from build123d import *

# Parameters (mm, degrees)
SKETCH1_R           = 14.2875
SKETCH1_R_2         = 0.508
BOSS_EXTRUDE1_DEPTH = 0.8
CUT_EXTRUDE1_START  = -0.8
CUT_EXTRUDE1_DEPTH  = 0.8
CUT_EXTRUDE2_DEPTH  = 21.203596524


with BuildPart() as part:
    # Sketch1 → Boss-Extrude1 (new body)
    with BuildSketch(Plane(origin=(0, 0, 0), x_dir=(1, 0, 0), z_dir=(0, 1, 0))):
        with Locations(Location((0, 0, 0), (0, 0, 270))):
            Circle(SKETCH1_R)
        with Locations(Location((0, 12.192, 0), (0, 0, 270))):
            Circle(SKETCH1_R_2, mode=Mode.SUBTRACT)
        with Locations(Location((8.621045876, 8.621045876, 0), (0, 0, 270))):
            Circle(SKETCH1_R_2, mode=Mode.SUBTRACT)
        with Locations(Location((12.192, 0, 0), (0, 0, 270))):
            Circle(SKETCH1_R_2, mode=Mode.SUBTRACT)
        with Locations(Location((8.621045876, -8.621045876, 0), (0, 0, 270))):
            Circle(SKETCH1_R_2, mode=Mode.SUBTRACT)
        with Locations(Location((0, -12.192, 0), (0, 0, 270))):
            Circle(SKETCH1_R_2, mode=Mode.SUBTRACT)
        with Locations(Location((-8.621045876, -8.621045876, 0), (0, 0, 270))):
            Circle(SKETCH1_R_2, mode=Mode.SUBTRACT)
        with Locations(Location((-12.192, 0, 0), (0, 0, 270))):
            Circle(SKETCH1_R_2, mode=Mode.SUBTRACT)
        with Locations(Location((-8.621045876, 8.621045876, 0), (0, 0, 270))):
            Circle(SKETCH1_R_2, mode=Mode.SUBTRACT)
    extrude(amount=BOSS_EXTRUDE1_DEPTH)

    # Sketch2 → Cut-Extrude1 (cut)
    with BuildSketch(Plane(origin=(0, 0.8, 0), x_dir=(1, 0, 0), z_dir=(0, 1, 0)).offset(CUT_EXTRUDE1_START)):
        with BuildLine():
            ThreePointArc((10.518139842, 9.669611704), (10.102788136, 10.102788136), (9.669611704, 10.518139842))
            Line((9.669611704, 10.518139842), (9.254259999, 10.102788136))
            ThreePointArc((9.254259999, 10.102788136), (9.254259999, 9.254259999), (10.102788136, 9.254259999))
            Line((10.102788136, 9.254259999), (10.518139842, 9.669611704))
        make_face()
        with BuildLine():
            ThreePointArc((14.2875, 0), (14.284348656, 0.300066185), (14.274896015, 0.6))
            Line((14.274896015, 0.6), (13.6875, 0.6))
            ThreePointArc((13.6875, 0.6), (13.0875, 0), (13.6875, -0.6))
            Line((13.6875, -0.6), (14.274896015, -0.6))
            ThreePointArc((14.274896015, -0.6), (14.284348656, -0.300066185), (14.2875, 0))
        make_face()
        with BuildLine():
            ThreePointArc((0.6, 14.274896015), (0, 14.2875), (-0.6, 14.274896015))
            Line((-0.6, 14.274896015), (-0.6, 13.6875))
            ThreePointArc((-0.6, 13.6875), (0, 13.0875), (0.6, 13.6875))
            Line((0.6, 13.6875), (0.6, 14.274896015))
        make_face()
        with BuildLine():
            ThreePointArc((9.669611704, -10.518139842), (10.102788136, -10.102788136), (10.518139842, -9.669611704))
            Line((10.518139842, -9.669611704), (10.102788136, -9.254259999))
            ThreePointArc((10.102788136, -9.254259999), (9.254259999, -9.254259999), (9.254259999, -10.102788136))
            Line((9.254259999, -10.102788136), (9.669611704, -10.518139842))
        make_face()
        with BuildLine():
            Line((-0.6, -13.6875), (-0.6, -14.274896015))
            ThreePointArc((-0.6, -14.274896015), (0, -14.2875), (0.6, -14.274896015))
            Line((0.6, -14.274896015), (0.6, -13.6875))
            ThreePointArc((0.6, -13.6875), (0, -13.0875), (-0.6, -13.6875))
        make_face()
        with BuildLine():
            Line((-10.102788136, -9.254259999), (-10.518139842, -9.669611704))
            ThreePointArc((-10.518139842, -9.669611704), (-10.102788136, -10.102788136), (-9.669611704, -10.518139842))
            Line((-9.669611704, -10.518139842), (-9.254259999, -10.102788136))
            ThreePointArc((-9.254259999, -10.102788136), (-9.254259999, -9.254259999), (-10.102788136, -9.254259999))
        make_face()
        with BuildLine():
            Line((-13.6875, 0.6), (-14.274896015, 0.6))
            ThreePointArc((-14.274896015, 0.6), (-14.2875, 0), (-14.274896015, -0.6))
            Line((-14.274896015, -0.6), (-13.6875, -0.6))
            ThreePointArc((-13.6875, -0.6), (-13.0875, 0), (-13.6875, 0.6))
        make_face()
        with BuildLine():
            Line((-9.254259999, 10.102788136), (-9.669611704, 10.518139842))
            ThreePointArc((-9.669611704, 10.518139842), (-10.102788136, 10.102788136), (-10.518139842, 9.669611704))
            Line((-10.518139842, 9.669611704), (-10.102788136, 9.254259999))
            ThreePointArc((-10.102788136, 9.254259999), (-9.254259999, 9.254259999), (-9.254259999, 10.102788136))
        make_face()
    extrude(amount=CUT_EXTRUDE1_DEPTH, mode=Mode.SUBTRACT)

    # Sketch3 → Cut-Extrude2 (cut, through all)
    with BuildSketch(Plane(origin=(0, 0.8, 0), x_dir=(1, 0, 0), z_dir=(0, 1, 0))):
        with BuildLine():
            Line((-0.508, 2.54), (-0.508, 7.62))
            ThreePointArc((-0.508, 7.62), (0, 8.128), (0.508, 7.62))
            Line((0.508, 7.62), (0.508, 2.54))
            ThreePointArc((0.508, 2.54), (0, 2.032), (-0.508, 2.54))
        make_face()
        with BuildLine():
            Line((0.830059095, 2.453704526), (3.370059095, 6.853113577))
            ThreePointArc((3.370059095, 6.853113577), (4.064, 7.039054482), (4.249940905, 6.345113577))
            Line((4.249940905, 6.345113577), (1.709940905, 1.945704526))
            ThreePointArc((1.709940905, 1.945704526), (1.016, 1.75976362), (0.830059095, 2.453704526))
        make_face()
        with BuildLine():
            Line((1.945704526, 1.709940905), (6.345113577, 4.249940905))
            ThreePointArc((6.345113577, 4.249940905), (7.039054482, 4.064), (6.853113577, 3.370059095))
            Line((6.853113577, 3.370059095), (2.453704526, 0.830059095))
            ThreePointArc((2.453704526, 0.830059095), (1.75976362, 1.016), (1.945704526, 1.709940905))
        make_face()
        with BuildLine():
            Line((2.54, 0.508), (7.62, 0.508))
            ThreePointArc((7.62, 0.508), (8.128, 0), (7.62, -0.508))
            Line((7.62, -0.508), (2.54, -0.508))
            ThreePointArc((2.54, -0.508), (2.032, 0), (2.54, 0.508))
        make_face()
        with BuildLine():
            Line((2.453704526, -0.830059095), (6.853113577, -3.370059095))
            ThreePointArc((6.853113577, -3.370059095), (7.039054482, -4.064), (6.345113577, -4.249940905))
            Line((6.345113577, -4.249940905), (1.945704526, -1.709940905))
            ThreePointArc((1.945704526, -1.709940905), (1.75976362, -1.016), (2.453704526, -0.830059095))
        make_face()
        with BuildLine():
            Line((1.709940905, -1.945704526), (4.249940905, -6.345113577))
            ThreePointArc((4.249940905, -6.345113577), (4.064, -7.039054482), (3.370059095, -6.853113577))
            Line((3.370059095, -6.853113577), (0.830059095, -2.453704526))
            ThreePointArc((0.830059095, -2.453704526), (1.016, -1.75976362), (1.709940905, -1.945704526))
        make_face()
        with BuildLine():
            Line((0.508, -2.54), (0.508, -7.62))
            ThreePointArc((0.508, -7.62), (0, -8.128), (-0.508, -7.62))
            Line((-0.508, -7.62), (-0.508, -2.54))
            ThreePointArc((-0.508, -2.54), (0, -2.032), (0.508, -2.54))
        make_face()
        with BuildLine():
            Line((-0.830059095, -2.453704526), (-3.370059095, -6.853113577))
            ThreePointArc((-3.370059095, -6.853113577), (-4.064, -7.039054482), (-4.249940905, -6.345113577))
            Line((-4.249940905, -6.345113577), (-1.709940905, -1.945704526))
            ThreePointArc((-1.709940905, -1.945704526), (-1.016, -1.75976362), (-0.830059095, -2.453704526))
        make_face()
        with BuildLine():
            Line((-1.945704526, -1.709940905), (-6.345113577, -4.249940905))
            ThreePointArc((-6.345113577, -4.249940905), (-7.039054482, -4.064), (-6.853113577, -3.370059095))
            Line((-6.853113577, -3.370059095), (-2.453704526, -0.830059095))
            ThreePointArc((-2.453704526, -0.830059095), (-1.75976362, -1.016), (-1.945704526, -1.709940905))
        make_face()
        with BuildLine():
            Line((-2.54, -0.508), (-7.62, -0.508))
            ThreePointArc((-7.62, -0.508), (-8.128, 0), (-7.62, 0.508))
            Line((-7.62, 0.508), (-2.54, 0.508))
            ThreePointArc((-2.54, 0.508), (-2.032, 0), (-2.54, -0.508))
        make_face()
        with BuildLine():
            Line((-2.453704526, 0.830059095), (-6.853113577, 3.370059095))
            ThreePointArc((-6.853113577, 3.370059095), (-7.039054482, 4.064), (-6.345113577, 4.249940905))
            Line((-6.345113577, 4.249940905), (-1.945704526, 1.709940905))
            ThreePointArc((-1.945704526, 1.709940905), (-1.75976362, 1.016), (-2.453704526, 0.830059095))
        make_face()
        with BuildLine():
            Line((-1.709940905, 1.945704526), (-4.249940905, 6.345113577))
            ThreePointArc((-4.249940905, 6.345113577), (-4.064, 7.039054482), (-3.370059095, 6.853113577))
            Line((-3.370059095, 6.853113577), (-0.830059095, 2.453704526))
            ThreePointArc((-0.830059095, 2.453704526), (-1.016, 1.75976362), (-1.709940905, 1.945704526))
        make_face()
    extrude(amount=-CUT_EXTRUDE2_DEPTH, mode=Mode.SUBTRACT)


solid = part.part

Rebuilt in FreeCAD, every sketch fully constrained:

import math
import FreeCAD as App
import Part
import Sketcher

V = App.Vector
Q = App.Units.Quantity

doc = App.newDocument("Part")
body = doc.addObject("PartDesign::Body", "Body")

# Sketch on XZ plane
sketch1 = doc.addObject("Sketcher::SketchObject", "Sketch")
body.addObject(sketch1)
sketch1.AttachmentSupport = (doc.XZ_Plane, [""])
sketch1.MapMode = "FlatFace"
sketch1.addGeometry(Part.Circle(V(0, 0, 0), V(0, 0, 1), 14.3), False)
sketch1.addGeometry(Part.Circle(V(-8.6, -8.6, 0), V(0, 0, 1), 0.5), False)
sketch1.addGeometry(Part.Circle(V(0, -12.2, 0), V(0, 0, 1), 0.5), False)
sketch1.addGeometry(Part.Circle(V(-12.2, 0, 0), V(0, 0, 1), 0.5), False)
sketch1.addGeometry(Part.Circle(V(-8.6, 8.6, 0), V(0, 0, 1), 0.5), False)
sketch1.addGeometry(Part.Circle(V(8.6, -8.6, 0), V(0, 0, 1), 0.5), False)
sketch1.addGeometry(Part.Circle(V(12.2, 0, 0), V(0, 0, 1), 0.5), False)
sketch1.addGeometry(Part.Circle(V(0, 12.2, 0), V(0, 0, 1), 0.5), False)
sketch1.addGeometry(Part.Circle(V(8.6, 8.6, 0), V(0, 0, 1), 0.5), False)
sketch1.addConstraint(Sketcher.Constraint("Coincident", 0, 3, -1, 1))
sketch1.addConstraint(Sketcher.Constraint("Equal", 1, 2))
sketch1.addConstraint(Sketcher.Constraint("Equal", 2, 3))
sketch1.addConstraint(Sketcher.Constraint("Equal", 3, 4))
sketch1.addConstraint(Sketcher.Constraint("Equal", 4, 5))
sketch1.addConstraint(Sketcher.Constraint("Equal", 5, 6))
sketch1.addConstraint(Sketcher.Constraint("Equal", 6, 7))
sketch1.addConstraint(Sketcher.Constraint("Equal", 7, 8))
sketch1.addConstraint(Sketcher.Constraint("Symmetric", 4, 3, 5, 3, -1, 1))
sketch1.addConstraint(Sketcher.Constraint("Symmetric", 3, 3, 6, 3, -1, 1))
sketch1.addConstraint(Sketcher.Constraint("Symmetric", 2, 3, 7, 3, -1, 1))
sketch1.addConstraint(Sketcher.Constraint("Symmetric", 1, 3, 8, 3, -1, 1))
sketch1.addConstraint(Sketcher.Constraint("Symmetric", 1, 3, 5, 3, -2))
sketch1.addConstraint(Sketcher.Constraint("PointOnObject", 2, 3, -2))
sketch1.addConstraint(Sketcher.Constraint("PointOnObject", 3, 3, -1))
sketch1.addConstraint(Sketcher.Constraint("Diameter", 1, Q("0.04 in")))
sketch1.addConstraint(Sketcher.Constraint("Diameter", 0, Q("1.125 in")))
sketch1.addConstraint(Sketcher.Constraint("DistanceY", 2, 3, -1, 1, Q("0.48 in")))
sketch1.addConstraint(Sketcher.Constraint("DistanceX", 3, 3, -1, 1, Q("0.48 in")))
sketch1.addConstraint(Sketcher.Constraint("DistanceY", 1, 3, 4, 3, 17.242092))
sketch1.addConstraint(Sketcher.Constraint("DistanceX", 1, 3, 5, 3, 17.242092))
pad1 = doc.addObject("PartDesign::Pad", "Pad")
body.addObject(pad1)
pad1.Profile = sketch1
pad1.Length = 0.8
pad1.Reversed = True

# Sketch on XZ plane
sketch2 = doc.addObject("Sketcher::SketchObject", "Sketch001")
body.addObject(sketch2)
sketch2.AttachmentSupport = (doc.XZ_Plane, [""])
sketch2.MapMode = "FlatFace"
sketch2.addGeometry(Part.ArcOfCircle(Part.Circle(V(0, 0, 0), V(0, 0, 1), 14.3), math.radians(-47.41), math.radians(-42.59)), False)
sketch2.addGeometry(Part.LineSegment(V(9.7, -10.5, 0), V(9.3, -10.1, 0)), False)
sketch2.addGeometry(Part.ArcOfCircle(Part.Circle(V(9.7, -9.7, 0), V(0, 0, 1), 0.6), math.radians(45), math.radians(225)), False)
sketch2.addGeometry(Part.LineSegment(V(10.1, -9.3, 0), V(10.5, -9.7, 0)), False)
sketch2.addGeometry(Part.ArcOfCircle(Part.Circle(V(0, 0, 0), V(0, 0, 1), 14.3), math.radians(-2.41), math.radians(0)), False)
sketch2.addGeometry(Part.LineSegment(V(14.3, -0.6, 0), V(13.7, -0.6, 0)), False)
sketch2.addGeometry(Part.ArcOfCircle(Part.Circle(V(13.7, 0, 0), V(0, 0, 1), 0.6), math.radians(90), math.radians(270)), False)
sketch2.addGeometry(Part.LineSegment(V(13.7, 0.6, 0), V(14.3, 0.6, 0)), False)
sketch2.addGeometry(Part.ArcOfCircle(Part.Circle(V(0, 0, 0), V(0, 0, 1), 14.3), math.radians(0), math.radians(2.41)), False)
sketch2.addGeometry(Part.ArcOfCircle(Part.Circle(V(0, 0, 0), V(0, 0, 1), 14.3), math.radians(-92.41), math.radians(-87.59)), False)
sketch2.addGeometry(Part.LineSegment(V(-0.6, -14.3, 0), V(-0.6, -13.7, 0)), False)
sketch2.addGeometry(Part.ArcOfCircle(Part.Circle(V(0, -13.7, 0), V(0, 0, 1), 0.6), math.radians(0), math.radians(180)), False)
sketch2.addGeometry(Part.LineSegment(V(0.6, -13.7, 0), V(0.6, -14.3, 0)), False)
sketch2.addGeometry(Part.ArcOfCircle(Part.Circle(V(0, 0, 0), V(0, 0, 1), 14.3), math.radians(42.59), math.radians(47.41)), False)
sketch2.addGeometry(Part.LineSegment(V(10.5, 9.7, 0), V(10.1, 9.3, 0)), False)
sketch2.addGeometry(Part.ArcOfCircle(Part.Circle(V(9.7, 9.7, 0), V(0, 0, 1), 0.6), math.radians(135), math.radians(315)), False)
sketch2.addGeometry(Part.LineSegment(V(9.3, 10.1, 0), V(9.7, 10.5, 0)), False)
sketch2.addGeometry(Part.LineSegment(V(-0.6, 13.7, 0), V(-0.6, 14.3, 0)), False)
sketch2.addGeometry(Part.ArcOfCircle(Part.Circle(V(0, 0, 0), V(0, 0, 1), 14.3), math.radians(87.59), math.radians(92.41)), False)
sketch2.addGeometry(Part.LineSegment(V(0.6, 14.3, 0), V(0.6, 13.7, 0)), False)
sketch2.addGeometry(Part.ArcOfCircle(Part.Circle(V(0, 13.7, 0), V(0, 0, 1), 0.6), math.radians(180), math.radians(360)), False)
sketch2.addGeometry(Part.LineSegment(V(-10.1, 9.3, 0), V(-10.5, 9.7, 0)), False)
sketch2.addGeometry(Part.ArcOfCircle(Part.Circle(V(0, 0, 0), V(0, 0, 1), 14.3), math.radians(132.59), math.radians(137.41)), False)
sketch2.addGeometry(Part.LineSegment(V(-9.7, 10.5, 0), V(-9.3, 10.1, 0)), False)
sketch2.addGeometry(Part.ArcOfCircle(Part.Circle(V(-9.7, 9.7, 0), V(0, 0, 1), 0.6), math.radians(-135), math.radians(45)), False)
sketch2.addGeometry(Part.LineSegment(V(-13.7, -0.6, 0), V(-14.3, -0.6, 0)), False)
sketch2.addGeometry(Part.ArcOfCircle(Part.Circle(V(0, 0, 0), V(0, 0, 1), 14.3), math.radians(177.59), math.radians(182.41)), False)
sketch2.addGeometry(Part.LineSegment(V(-14.3, 0.6, 0), V(-13.7, 0.6, 0)), False)
sketch2.addGeometry(Part.ArcOfCircle(Part.Circle(V(-13.7, 0, 0), V(0, 0, 1), 0.6), math.radians(-90), math.radians(90)), False)
sketch2.addGeometry(Part.LineSegment(V(-9.3, -10.1, 0), V(-9.7, -10.5, 0)), False)
sketch2.addGeometry(Part.ArcOfCircle(Part.Circle(V(0, 0, 0), V(0, 0, 1), 14.3), math.radians(-137.41), math.radians(-132.59)), False)
sketch2.addGeometry(Part.LineSegment(V(-10.5, -9.7, 0), V(-10.1, -9.3, 0)), False)
sketch2.addGeometry(Part.ArcOfCircle(Part.Circle(V(-9.7, -9.7, 0), V(0, 0, 1), 0.6), math.radians(-45), math.radians(135)), False)
sketch2.addConstraint(Sketcher.Constraint("Coincident", 0, 1, 1, 1))
sketch2.addConstraint(Sketcher.Constraint("Tangent", 1, 2, 2, 2))
sketch2.addConstraint(Sketcher.Constraint("Tangent", 2, 1, 3, 1))
sketch2.addConstraint(Sketcher.Constraint("Coincident", 3, 2, 0, 2))
sketch2.addConstraint(Sketcher.Constraint("Coincident", 4, 1, 5, 1))
sketch2.addConstraint(Sketcher.Constraint("Tangent", 5, 2, 6, 2))
sketch2.addConstraint(Sketcher.Constraint("Tangent", 6, 1, 7, 1))
sketch2.addConstraint(Sketcher.Constraint("Coincident", 7, 2, 8, 2))
sketch2.addConstraint(Sketcher.Constraint("Tangent", 8, 1, 4, 2))
sketch2.addConstraint(Sketcher.Constraint("Coincident", 9, 1, 10, 1))
sketch2.addConstraint(Sketcher.Constraint("Tangent", 10, 2, 11, 2))
sketch2.addConstraint(Sketcher.Constraint("Tangent", 11, 1, 12, 1))
sketch2.addConstraint(Sketcher.Constraint("Coincident", 12, 2, 9, 2))
sketch2.addConstraint(Sketcher.Constraint("Coincident", 13, 1, 14, 1))
sketch2.addConstraint(Sketcher.Constraint("Tangent", 14, 2, 15, 2))
sketch2.addConstraint(Sketcher.Constraint("Tangent", 15, 1, 16, 1))
sketch2.addConstraint(Sketcher.Constraint("Coincident", 16, 2, 13, 2))
sketch2.addConstraint(Sketcher.Constraint("Coincident", 17, 2, 18, 2))
sketch2.addConstraint(Sketcher.Constraint("Coincident", 18, 1, 19, 1))
sketch2.addConstraint(Sketcher.Constraint("Tangent", 19, 2, 20, 2))
sketch2.addConstraint(Sketcher.Constraint("Tangent", 20, 1, 17, 1))
sketch2.addConstraint(Sketcher.Constraint("Coincident", 21, 2, 22, 2))
sketch2.addConstraint(Sketcher.Constraint("Coincident", 22, 1, 23, 1))
sketch2.addConstraint(Sketcher.Constraint("Tangent", 23, 2, 24, 2))
sketch2.addConstraint(Sketcher.Constraint("Tangent", 24, 1, 21, 1))
sketch2.addConstraint(Sketcher.Constraint("Coincident", 25, 2, 26, 2))
sketch2.addConstraint(Sketcher.Constraint("Coincident", 26, 1, 27, 1))
sketch2.addConstraint(Sketcher.Constraint("Tangent", 27, 2, 28, 2))
sketch2.addConstraint(Sketcher.Constraint("Tangent", 28, 1, 25, 1))
sketch2.addConstraint(Sketcher.Constraint("Coincident", 29, 2, 30, 2))
sketch2.addConstraint(Sketcher.Constraint("Coincident", 30, 1, 31, 1))
sketch2.addConstraint(Sketcher.Constraint("Tangent", 31, 2, 32, 2))
sketch2.addConstraint(Sketcher.Constraint("Tangent", 32, 1, 29, 1))
sketch2.addConstraint(Sketcher.Constraint("Horizontal", 5))
sketch2.addConstraint(Sketcher.Constraint("Horizontal", 7))
sketch2.addConstraint(Sketcher.Constraint("Vertical", 10))
sketch2.addConstraint(Sketcher.Constraint("Vertical", 12))
sketch2.addConstraint(Sketcher.Constraint("Vertical", 17))
sketch2.addConstraint(Sketcher.Constraint("Vertical", 19))
sketch2.addConstraint(Sketcher.Constraint("Horizontal", 25))
sketch2.addConstraint(Sketcher.Constraint("Horizontal", 27))
sketch2.addConstraint(Sketcher.Constraint("Coincident", 0, 3, -1, 1))
sketch2.addConstraint(Sketcher.Constraint("Coincident", 4, 3, -1, 1))
sketch2.addConstraint(Sketcher.Constraint("Coincident", 9, 3, -1, 1))
sketch2.addConstraint(Sketcher.Constraint("Coincident", 13, 3, -1, 1))
sketch2.addConstraint(Sketcher.Constraint("Coincident", 18, 3, -1, 1))
sketch2.addConstraint(Sketcher.Constraint("Coincident", 22, 3, -1, 1))
sketch2.addConstraint(Sketcher.Constraint("Coincident", 26, 3, -1, 1))
sketch2.addConstraint(Sketcher.Constraint("Coincident", 30, 3, -1, 1))
sketch2.addConstraint(Sketcher.Constraint("Equal", 0, 4))
sketch2.addConstraint(Sketcher.Constraint("Equal", 2, 6))
sketch2.addConstraint(Sketcher.Constraint("Equal", 4, 8))
sketch2.addConstraint(Sketcher.Constraint("Equal", 8, 9))
sketch2.addConstraint(Sketcher.Constraint("Equal", 6, 11))
sketch2.addConstraint(Sketcher.Constraint("Equal", 9, 13))
sketch2.addConstraint(Sketcher.Constraint("Equal", 11, 15))
sketch2.addConstraint(Sketcher.Constraint("Equal", 13, 18))
sketch2.addConstraint(Sketcher.Constraint("Equal", 15, 20))
sketch2.addConstraint(Sketcher.Constraint("Equal", 18, 22))
sketch2.addConstraint(Sketcher.Constraint("Equal", 20, 24))
sketch2.addConstraint(Sketcher.Constraint("Equal", 22, 26))
sketch2.addConstraint(Sketcher.Constraint("Equal", 24, 28))
sketch2.addConstraint(Sketcher.Constraint("Equal", 26, 30))
sketch2.addConstraint(Sketcher.Constraint("Equal", 28, 32))
sketch2.addConstraint(Sketcher.Constraint("Symmetric", 11, 3, 20, 3, -1, 1))
sketch2.addConstraint(Sketcher.Constraint("Symmetric", 2, 3, 24, 3, -1, 1))
sketch2.addConstraint(Sketcher.Constraint("Symmetric", 6, 3, 28, 3, -1, 1))
sketch2.addConstraint(Sketcher.Constraint("Symmetric", 15, 3, 32, 3, -1, 1))
sketch2.addConstraint(Sketcher.Constraint("Symmetric", 15, 3, 24, 3, -2))
sketch2.addConstraint(Sketcher.Constraint("PointOnObject", 6, 3, -1))
sketch2.addConstraint(Sketcher.Constraint("PointOnObject", 11, 3, -2))
sketch2.addConstraint(Sketcher.Constraint("PointOnObject", 8, 1, -1))
sketch2.addConstraint(Sketcher.Constraint("Parallel", 1, 3))
sketch2.addConstraint(Sketcher.Constraint("Perpendicular", 3, 14))
sketch2.addConstraint(Sketcher.Constraint("Parallel", 14, 16))
sketch2.addConstraint(Sketcher.Constraint("Perpendicular", 16, 21))
sketch2.addConstraint(Sketcher.Constraint("Parallel", 21, 23))
sketch2.addConstraint(Sketcher.Constraint("Perpendicular", 23, 29))
sketch2.addConstraint(Sketcher.Constraint("Parallel", 29, 31))
sketch2.addConstraint(Sketcher.Constraint("Horizontal", 13, 1, 21, 2))
sketch2.addConstraint(Sketcher.Constraint("Equal", 27, 10))
sketch2.addConstraint(Sketcher.Constraint("Equal", 1, 3))
sketch2.addConstraint(Sketcher.Constraint("Radius", 0, Q("0.5625 in")))
sketch2.addConstraint(Sketcher.Constraint("Radius", 2, 0.6))
sketch2.addConstraint(Sketcher.Constraint("DistanceX", -1, 1, 6, 3, 13.6875))
sketch2.addConstraint(Sketcher.Constraint("DistanceX", -1, 1, 1, 2, 9.25426))
pocket1 = doc.addObject("PartDesign::Pocket", "Pocket")
body.addObject(pocket1)
pocket1.Profile = sketch2
pocket1.Length = 0.8

# Sketch on XZ plane
sketch3 = doc.addObject("Sketcher::SketchObject", "Sketch002")
body.addObject(sketch3)
sketch3.AttachmentSupport = (doc.XZ_Plane, [""])
sketch3.MapMode = "FlatFace"
sketch3.AttachmentOffset = App.Placement(V(0, 0, -0.8), App.Rotation())
sketch3.addGeometry(Part.LineSegment(V(-0.5, -7.6, 0), V(-0.5, -2.5, 0)), False)
sketch3.addGeometry(Part.ArcOfCircle(Part.Circle(V(0, -2.5, 0), V(0, 0, 1), 0.5), math.radians(0), math.radians(180)), False)
sketch3.addGeometry(Part.LineSegment(V(0.5, -2.5, 0), V(0.5, -7.6, 0)), False)
sketch3.addGeometry(Part.ArcOfCircle(Part.Circle(V(0, -7.6, 0), V(0, 0, 1), 0.5), math.radians(180), math.radians(360)), False)
sketch3.addGeometry(Part.LineSegment(V(3.4, -6.9, 0), V(0.8, -2.5, 0)), False)
sketch3.addGeometry(Part.ArcOfCircle(Part.Circle(V(1.3, -2.2, 0), V(0, 0, 1), 0.5), math.radians(30), math.radians(210)), False)
sketch3.addGeometry(Part.LineSegment(V(1.7, -1.9, 0), V(4.2, -6.3, 0)), False)
sketch3.addGeometry(Part.ArcOfCircle(Part.Circle(V(3.8, -6.6, 0), V(0, 0, 1), 0.5), math.radians(-150), math.radians(30)), False)
sketch3.addGeometry(Part.LineSegment(V(6.3, -4.2, 0), V(1.9, -1.7, 0)), False)
sketch3.addGeometry(Part.ArcOfCircle(Part.Circle(V(2.2, -1.3, 0), V(0, 0, 1), 0.5), math.radians(60), math.radians(240)), False)
sketch3.addGeometry(Part.LineSegment(V(2.5, -0.8, 0), V(6.9, -3.4, 0)), False)
sketch3.addGeometry(Part.ArcOfCircle(Part.Circle(V(6.6, -3.8, 0), V(0, 0, 1), 0.5), math.radians(-120), math.radians(60)), False)
sketch3.addGeometry(Part.LineSegment(V(7.6, -0.5, 0), V(2.5, -0.5, 0)), False)
sketch3.addGeometry(Part.ArcOfCircle(Part.Circle(V(2.5, 0, 0), V(0, 0, 1), 0.5), math.radians(90), math.radians(270)), False)
sketch3.addGeometry(Part.LineSegment(V(2.5, 0.5, 0), V(7.6, 0.5, 0)), False)
sketch3.addGeometry(Part.ArcOfCircle(Part.Circle(V(7.6, 0, 0), V(0, 0, 1), 0.5), math.radians(-90), math.radians(90)), False)
sketch3.addGeometry(Part.LineSegment(V(6.9, 3.4, 0), V(2.5, 0.8, 0)), False)
sketch3.addGeometry(Part.ArcOfCircle(Part.Circle(V(2.2, 1.3, 0), V(0, 0, 1), 0.5), math.radians(120), math.radians(300)), False)
sketch3.addGeometry(Part.LineSegment(V(1.9, 1.7, 0), V(6.3, 4.2, 0)), False)
sketch3.addGeometry(Part.ArcOfCircle(Part.Circle(V(6.6, 3.8, 0), V(0, 0, 1), 0.5), math.radians(-60), math.radians(120)), False)
sketch3.addGeometry(Part.LineSegment(V(4.2, 6.3, 0), V(1.7, 1.9, 0)), False)
sketch3.addGeometry(Part.ArcOfCircle(Part.Circle(V(1.3, 2.2, 0), V(0, 0, 1), 0.5), math.radians(150), math.radians(330)), False)
sketch3.addGeometry(Part.LineSegment(V(0.8, 2.5, 0), V(3.4, 6.9, 0)), False)
sketch3.addGeometry(Part.ArcOfCircle(Part.Circle(V(3.8, 6.6, 0), V(0, 0, 1), 0.5), math.radians(-30), math.radians(150)), False)
sketch3.addGeometry(Part.LineSegment(V(0.5, 7.6, 0), V(0.5, 2.5, 0)), False)
sketch3.addGeometry(Part.ArcOfCircle(Part.Circle(V(0, 2.5, 0), V(0, 0, 1), 0.5), math.radians(180), math.radians(360)), False)
sketch3.addGeometry(Part.LineSegment(V(-0.5, 2.5, 0), V(-0.5, 7.6, 0)), False)
sketch3.addGeometry(Part.ArcOfCircle(Part.Circle(V(0, 7.6, 0), V(0, 0, 1), 0.5), math.radians(0), math.radians(180)), False)
sketch3.addGeometry(Part.LineSegment(V(-3.4, 6.9, 0), V(-0.8, 2.5, 0)), False)
sketch3.addGeometry(Part.ArcOfCircle(Part.Circle(V(-1.3, 2.2, 0), V(0, 0, 1), 0.5), math.radians(-150), math.radians(30)), False)
sketch3.addGeometry(Part.LineSegment(V(-1.7, 1.9, 0), V(-4.2, 6.3, 0)), False)
sketch3.addGeometry(Part.ArcOfCircle(Part.Circle(V(-3.8, 6.6, 0), V(0, 0, 1), 0.5), math.radians(30), math.radians(210)), False)
sketch3.addGeometry(Part.LineSegment(V(-6.3, 4.2, 0), V(-1.9, 1.7, 0)), False)
sketch3.addGeometry(Part.ArcOfCircle(Part.Circle(V(-2.2, 1.3, 0), V(0, 0, 1), 0.5), math.radians(-120), math.radians(60)), False)
sketch3.addGeometry(Part.LineSegment(V(-2.5, 0.8, 0), V(-6.9, 3.4, 0)), False)
sketch3.addGeometry(Part.ArcOfCircle(Part.Circle(V(-6.6, 3.8, 0), V(0, 0, 1), 0.5), math.radians(60), math.radians(240)), False)
sketch3.addGeometry(Part.LineSegment(V(-7.6, 0.5, 0), V(-2.5, 0.5, 0)), False)
sketch3.addGeometry(Part.ArcOfCircle(Part.Circle(V(-2.5, 0, 0), V(0, 0, 1), 0.5), math.radians(-90), math.radians(90)), False)
sketch3.addGeometry(Part.LineSegment(V(-2.5, -0.5, 0), V(-7.6, -0.5, 0)), False)
sketch3.addGeometry(Part.ArcOfCircle(Part.Circle(V(-7.6, 0, 0), V(0, 0, 1), 0.5), math.radians(90), math.radians(270)), False)
sketch3.addGeometry(Part.LineSegment(V(-6.9, -3.4, 0), V(-2.5, -0.8, 0)), False)
sketch3.addGeometry(Part.ArcOfCircle(Part.Circle(V(-2.2, -1.3, 0), V(0, 0, 1), 0.5), math.radians(-60), math.radians(120)), False)
sketch3.addGeometry(Part.LineSegment(V(-1.9, -1.7, 0), V(-6.3, -4.2, 0)), False)
sketch3.addGeometry(Part.ArcOfCircle(Part.Circle(V(-6.6, -3.8, 0), V(0, 0, 1), 0.5), math.radians(120), math.radians(300)), False)
sketch3.addGeometry(Part.LineSegment(V(-4.2, -6.3, 0), V(-1.7, -1.9, 0)), False)
sketch3.addGeometry(Part.ArcOfCircle(Part.Circle(V(-1.3, -2.2, 0), V(0, 0, 1), 0.5), math.radians(-30), math.radians(150)), False)
sketch3.addGeometry(Part.LineSegment(V(-0.8, -2.5, 0), V(-3.4, -6.9, 0)), False)
sketch3.addGeometry(Part.ArcOfCircle(Part.Circle(V(-3.8, -6.6, 0), V(0, 0, 1), 0.5), math.radians(150), math.radians(330)), False)
sketch3.addConstraint(Sketcher.Constraint("Tangent", 0, 2, 1, 2))
sketch3.addConstraint(Sketcher.Constraint("Tangent", 1, 1, 2, 1))
sketch3.addConstraint(Sketcher.Constraint("Tangent", 2, 2, 3, 2))
sketch3.addConstraint(Sketcher.Constraint("Tangent", 3, 1, 0, 1))
sketch3.addConstraint(Sketcher.Constraint("Tangent", 4, 2, 5, 2))
sketch3.addConstraint(Sketcher.Constraint("Tangent", 5, 1, 6, 1))
sketch3.addConstraint(Sketcher.Constraint("Tangent", 6, 2, 7, 2))
sketch3.addConstraint(Sketcher.Constraint("Tangent", 7, 1, 4, 1))
sketch3.addConstraint(Sketcher.Constraint("Tangent", 8, 2, 9, 2))
sketch3.addConstraint(Sketcher.Constraint("Tangent", 9, 1, 10, 1))
sketch3.addConstraint(Sketcher.Constraint("Tangent", 10, 2, 11, 2))
sketch3.addConstraint(Sketcher.Constraint("Tangent", 11, 1, 8, 1))
sketch3.addConstraint(Sketcher.Constraint("Tangent", 12, 2, 13, 2))
sketch3.addConstraint(Sketcher.Constraint("Tangent", 13, 1, 14, 1))
sketch3.addConstraint(Sketcher.Constraint("Tangent", 14, 2, 15, 2))
sketch3.addConstraint(Sketcher.Constraint("Tangent", 15, 1, 12, 1))
sketch3.addConstraint(Sketcher.Constraint("Tangent", 16, 2, 17, 2))
sketch3.addConstraint(Sketcher.Constraint("Tangent", 17, 1, 18, 1))
sketch3.addConstraint(Sketcher.Constraint("Tangent", 18, 2, 19, 2))
sketch3.addConstraint(Sketcher.Constraint("Tangent", 19, 1, 16, 1))
sketch3.addConstraint(Sketcher.Constraint("Tangent", 20, 2, 21, 2))
sketch3.addConstraint(Sketcher.Constraint("Tangent", 21, 1, 22, 1))
sketch3.addConstraint(Sketcher.Constraint("Tangent", 22, 2, 23, 2))
sketch3.addConstraint(Sketcher.Constraint("Tangent", 23, 1, 20, 1))
sketch3.addConstraint(Sketcher.Constraint("Tangent", 24, 2, 25, 2))
sketch3.addConstraint(Sketcher.Constraint("Tangent", 25, 1, 26, 1))
sketch3.addConstraint(Sketcher.Constraint("Tangent", 26, 2, 27, 2))
sketch3.addConstraint(Sketcher.Constraint("Tangent", 27, 1, 24, 1))
sketch3.addConstraint(Sketcher.Constraint("Tangent", 28, 2, 29, 2))
sketch3.addConstraint(Sketcher.Constraint("Tangent", 29, 1, 30, 1))
sketch3.addConstraint(Sketcher.Constraint("Tangent", 30, 2, 31, 2))
sketch3.addConstraint(Sketcher.Constraint("Tangent", 31, 1, 28, 1))
sketch3.addConstraint(Sketcher.Constraint("Tangent", 32, 2, 33, 2))
sketch3.addConstraint(Sketcher.Constraint("Tangent", 33, 1, 34, 1))
sketch3.addConstraint(Sketcher.Constraint("Tangent", 34, 2, 35, 2))
sketch3.addConstraint(Sketcher.Constraint("Tangent", 35, 1, 32, 1))
sketch3.addConstraint(Sketcher.Constraint("Tangent", 36, 2, 37, 2))
sketch3.addConstraint(Sketcher.Constraint("Tangent", 37, 1, 38, 1))
sketch3.addConstraint(Sketcher.Constraint("Tangent", 38, 2, 39, 2))
sketch3.addConstraint(Sketcher.Constraint("Tangent", 39, 1, 36, 1))
sketch3.addConstraint(Sketcher.Constraint("Tangent", 40, 2, 41, 2))
sketch3.addConstraint(Sketcher.Constraint("Tangent", 41, 1, 42, 1))
sketch3.addConstraint(Sketcher.Constraint("Tangent", 42, 2, 43, 2))
sketch3.addConstraint(Sketcher.Constraint("Tangent", 43, 1, 40, 1))
sketch3.addConstraint(Sketcher.Constraint("Tangent", 44, 2, 45, 2))
sketch3.addConstraint(Sketcher.Constraint("Tangent", 45, 1, 46, 1))
sketch3.addConstraint(Sketcher.Constraint("Tangent", 46, 2, 47, 2))
sketch3.addConstraint(Sketcher.Constraint("Tangent", 47, 1, 44, 1))
sketch3.addConstraint(Sketcher.Constraint("Vertical", 0))
sketch3.addConstraint(Sketcher.Constraint("Vertical", 2))
sketch3.addConstraint(Sketcher.Constraint("Horizontal", 12))
sketch3.addConstraint(Sketcher.Constraint("Horizontal", 14))
sketch3.addConstraint(Sketcher.Constraint("Vertical", 24))
sketch3.addConstraint(Sketcher.Constraint("Vertical", 26))
sketch3.addConstraint(Sketcher.Constraint("Horizontal", 36))
sketch3.addConstraint(Sketcher.Constraint("Horizontal", 38))
sketch3.addConstraint(Sketcher.Constraint("Equal", 3, 5))
sketch3.addConstraint(Sketcher.Constraint("Equal", 5, 7))
sketch3.addConstraint(Sketcher.Constraint("Equal", 7, 9))
sketch3.addConstraint(Sketcher.Constraint("Equal", 9, 11))
sketch3.addConstraint(Sketcher.Constraint("Equal", 11, 13))
sketch3.addConstraint(Sketcher.Constraint("Equal", 15, 17))
sketch3.addConstraint(Sketcher.Constraint("Equal", 17, 19))
sketch3.addConstraint(Sketcher.Constraint("Equal", 19, 21))
sketch3.addConstraint(Sketcher.Constraint("Equal", 21, 23))
sketch3.addConstraint(Sketcher.Constraint("Equal", 23, 25))
sketch3.addConstraint(Sketcher.Constraint("Equal", 27, 29))
sketch3.addConstraint(Sketcher.Constraint("Equal", 29, 31))
sketch3.addConstraint(Sketcher.Constraint("Equal", 31, 33))
sketch3.addConstraint(Sketcher.Constraint("Equal", 33, 35))
sketch3.addConstraint(Sketcher.Constraint("Equal", 35, 37))
sketch3.addConstraint(Sketcher.Constraint("Equal", 39, 41))
sketch3.addConstraint(Sketcher.Constraint("Equal", 41, 43))
sketch3.addConstraint(Sketcher.Constraint("Equal", 43, 45))
sketch3.addConstraint(Sketcher.Constraint("Equal", 45, 47))
sketch3.addConstraint(Sketcher.Constraint("Symmetric", 1, 3, 25, 3, -1, 1))
sketch3.addConstraint(Sketcher.Constraint("Symmetric", 5, 3, 29, 3, -1, 1))
sketch3.addConstraint(Sketcher.Constraint("Symmetric", 7, 3, 31, 3, -1, 1))
sketch3.addConstraint(Sketcher.Constraint("Symmetric", 9, 3, 33, 3, -1, 1))
sketch3.addConstraint(Sketcher.Constraint("Symmetric", 11, 3, 35, 3, -1, 1))
sketch3.addConstraint(Sketcher.Constraint("Symmetric", 13, 3, 37, 3, -1, 1))
sketch3.addConstraint(Sketcher.Constraint("Symmetric", 17, 3, 41, 3, -1, 1))
sketch3.addConstraint(Sketcher.Constraint("Symmetric", 19, 3, 43, 3, -1, 1))
sketch3.addConstraint(Sketcher.Constraint("Symmetric", 21, 3, 45, 3, -1, 1))
sketch3.addConstraint(Sketcher.Constraint("Symmetric", 23, 3, 47, 3, -1, 1))
sketch3.addConstraint(Sketcher.Constraint("Symmetric", 21, 3, 29, 3, -2))
sketch3.addConstraint(Sketcher.Constraint("Symmetric", 23, 3, 31, 3, -2))
sketch3.addConstraint(Sketcher.Constraint("Symmetric", 17, 3, 33, 3, -2))
sketch3.addConstraint(Sketcher.Constraint("Symmetric", 19, 3, 35, 3, -2))
sketch3.addConstraint(Sketcher.Constraint("Symmetric", 15, 3, 39, 3, -2))
sketch3.addConstraint(Sketcher.Constraint("Symmetric", 3, 3, 27, 3, -1))
sketch3.addConstraint(Sketcher.Constraint("Perpendicular", 6, 16))
sketch3.addConstraint(Sketcher.Constraint("Equal", 38, 0))
sketch3.addConstraint(Sketcher.Constraint("Equal", 6, 8))
sketch3.addConstraint(Sketcher.Constraint("Radius", 1, Q("0.02 in")))
sketch3.addConstraint(Sketcher.Constraint("DistanceX", 12, 2, 12, 1, Q("0.2 in")))
sketch3.addConstraint(Sketcher.Constraint("Angle", 4, Q("120 deg")))
sketch3.addConstraint(Sketcher.Constraint("Distance", 4, Q("0.2 in")))
sketch3.addConstraint(Sketcher.Constraint("DistanceY", 1, 3, -1, 1, Q("0.1 in")))
sketch3.addConstraint(Sketcher.Constraint("DistanceX", -1, 1, 13, 3, Q("0.1 in")))
sketch3.addConstraint(Sketcher.Constraint("DistanceX", -1, 1, 5, 3, Q("0.05 in")))
sketch3.addConstraint(Sketcher.Constraint("DistanceY", 9, 3, -1, 1, Q("0.05 in")))
sketch3.addConstraint(Sketcher.Constraint("DistanceY", 5, 3, -1, 1, 2.199705))
sketch3.addConstraint(Sketcher.Constraint("DistanceX", -1, 1, 9, 3, 2.199705))
pocket2 = doc.addObject("PartDesign::Pocket", "Pocket001")
body.addObject(pocket2)
pocket2.Profile = sketch3
pocket2.Type = "ThroughAll"
pocket2.Reversed = True

doc.recompute()
